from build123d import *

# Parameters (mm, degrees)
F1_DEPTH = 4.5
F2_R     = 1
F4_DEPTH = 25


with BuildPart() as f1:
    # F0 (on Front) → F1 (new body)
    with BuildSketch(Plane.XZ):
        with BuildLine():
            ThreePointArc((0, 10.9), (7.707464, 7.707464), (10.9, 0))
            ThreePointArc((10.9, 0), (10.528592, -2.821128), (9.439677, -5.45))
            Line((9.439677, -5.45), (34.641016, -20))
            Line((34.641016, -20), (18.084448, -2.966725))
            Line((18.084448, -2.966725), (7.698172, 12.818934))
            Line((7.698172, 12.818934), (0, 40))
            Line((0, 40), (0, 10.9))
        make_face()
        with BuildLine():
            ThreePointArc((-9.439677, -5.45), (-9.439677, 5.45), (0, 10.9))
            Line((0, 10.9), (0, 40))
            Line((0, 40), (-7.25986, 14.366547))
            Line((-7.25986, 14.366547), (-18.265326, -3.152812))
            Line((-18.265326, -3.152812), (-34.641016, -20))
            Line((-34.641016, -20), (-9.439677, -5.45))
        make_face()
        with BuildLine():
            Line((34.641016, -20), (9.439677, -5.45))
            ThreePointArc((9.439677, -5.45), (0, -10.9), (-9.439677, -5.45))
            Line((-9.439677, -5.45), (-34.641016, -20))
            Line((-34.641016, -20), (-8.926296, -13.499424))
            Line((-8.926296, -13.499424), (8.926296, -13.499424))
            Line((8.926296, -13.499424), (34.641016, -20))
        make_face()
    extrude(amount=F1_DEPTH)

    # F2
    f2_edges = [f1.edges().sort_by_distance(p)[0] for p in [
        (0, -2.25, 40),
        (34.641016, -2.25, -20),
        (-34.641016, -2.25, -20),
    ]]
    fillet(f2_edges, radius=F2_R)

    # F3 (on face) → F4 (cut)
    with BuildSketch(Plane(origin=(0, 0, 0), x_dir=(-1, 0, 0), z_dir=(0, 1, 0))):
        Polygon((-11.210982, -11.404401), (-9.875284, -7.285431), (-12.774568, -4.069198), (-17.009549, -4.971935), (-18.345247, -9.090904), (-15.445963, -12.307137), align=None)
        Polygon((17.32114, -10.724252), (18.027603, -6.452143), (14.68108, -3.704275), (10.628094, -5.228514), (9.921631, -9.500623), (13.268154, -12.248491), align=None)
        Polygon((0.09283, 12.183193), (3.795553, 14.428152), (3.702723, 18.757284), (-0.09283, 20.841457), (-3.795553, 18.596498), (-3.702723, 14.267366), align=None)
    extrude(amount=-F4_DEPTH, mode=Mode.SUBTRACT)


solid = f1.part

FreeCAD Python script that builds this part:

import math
import FreeCAD as App
import Part
import Sketcher
from FreeCAD import Vector


def edges_at(feature, points):
    """Names of the edges that pass closest to the given points."""
    edges = feature.Shape.Edges
    near = lambda p: min(range(len(edges)), key=lambda i: edges[i].distToShape(Part.Vertex(*p))[0])
    return sorted({f"Edge{near(p) + 1}" for p in points})


def add_polygon(sketch, points):
    """Adds a closed chain of lines whose ends are joined by coincident constraints."""
    first, n = sketch.GeometryCount, len(points)
    for a, b in zip(points, points[1:] + points[:1]):
        sketch.addGeometry(Part.LineSegment(App.Vector(*a, 0), App.Vector(*b, 0)), False)
    for i in range(n):
        sketch.addConstraint(Sketcher.Constraint("Coincident", first + i, 2, first + (i + 1) % n, 1))

doc = App.newDocument("Part")
body = doc.addObject("PartDesign::Body", "Body")

sketch1 = body.newObject("Sketcher::SketchObject", "Sketch")
sketch1.AttachmentSupport = (doc.getObject("XZ_Plane"), [""])
sketch1.MapMode = "FlatFace"
add_polygon(sketch1, [(35, -20), (18, -3), (8, 13), (0, 40), (-7, 14), (-18, -3), (-35, -20), (-9, -13), (9, -13)])
sketch1.addGeometry(Part.ArcOfCircle(Part.Circle(Vector(0, 0, 0), Vector(0, 0, 1), 11), math.radians(0), math.radians(90)), False)
sketch1.addGeometry(Part.ArcOfCircle(Part.Circle(Vector(0, 0, 0), Vector(0, 0, 1), 11), math.radians(-30), math.radians(0)), False)
sketch1.addGeometry(Part.ArcOfCircle(Part.Circle(Vector(0, 0, 0), Vector(0, 0, 1), 11), math.radians(-150), math.radians(-30)), False)
sketch1.addGeometry(Part.ArcOfCircle(Part.Circle(Vector(0, 0, 0), Vector(0, 0, 1), 11), math.radians(90), math.radians(210)), False)
sketch1.addConstraint([
    Sketcher.Constraint("Tangent", 9, 1, 10, 2),
    Sketcher.Constraint("Tangent", 10, 1, 11, 2),
    Sketcher.Constraint("Tangent", 11, 1, 12, 2),
    Sketcher.Constraint("Tangent", 12, 1, 9, 2),
    Sketcher.Constraint("Horizontal", 7),
    Sketcher.Constraint("Coincident", 9, 3, -1, 1),
    Sketcher.Constraint("Equal", 9, 11),
    Sketcher.Constraint("Symmetric", 5, 2, 8, 2, -2),
    Sketcher.Constraint("PointOnObject", 2, 2, -2),
    Sketcher.Constraint("PointOnObject", 9, 1, -1),
    Sketcher.Constraint("PointOnObject", 12, 1, -2),
    Sketcher.Constraint("Horizontal", 10, 1, 11, 1),
    Sketcher.Constraint("Equal", 6, 8),
    Sketcher.Constraint("Radius", 9, 10.9),
    Sketcher.Constraint("DistanceY", -1, 1, 2, 2, 40.0),
    Sketcher.Constraint("DistanceY", 5, 2, -1, 1, 20.0),
    Sketcher.Constraint("DistanceY", 10, 1, -1, 1, 5.45),
    Sketcher.Constraint("DistanceX", 10, 3, 8, 2, 34.641001),
    Sketcher.Constraint("DistanceY", 7, 2, 0, 2, 10.532699),
    Sketcher.Constraint("Distance", 2, 28.250172),
    Sketcher.Constraint("Distance", 5, 23.494488),
    Sketcher.Constraint("DistanceX", 7, 1, 7, 2, 17.852592),
    Sketcher.Constraint("DistanceX", -1, 1, 1, 2, 7.698172),
    Sketcher.Constraint("DistanceX", 3, 2, -1, 1, 7.25986),
    Sketcher.Constraint("DistanceY", 4, 2, -1, 1, 3.152812),
    Sketcher.Constraint("DistanceY", 0, 2, 10, 3, 2.966721),
    Sketcher.Constraint("DistanceX", 12, 3, 0, 2, 18.084448),
    Sketcher.Constraint("DistanceY", 10, 3, 3, 2, 14.366551),
])
pad1 = body.newObject("PartDesign::Pad", "Pad")
pad1.Profile = sketch1
pad1.Length = 4.5
doc.recompute()

fillet = body.newObject("PartDesign::Fillet", "Fillet")
fillet.Base = (pad1, edges_at(pad1, [(0, -2.25, 40), (34.641, -2.25, -20), (-34.641, -2.25, -20)]))
fillet.Radius = 1

sketch2 = body.newObject("Sketcher::SketchObject", "Sketch001")
sketch2.AttachmentSupport = (doc.getObject("XZ_Plane"), [""])
sketch2.MapMode = "FlatFace"
add_polygon(sketch2, [(11.2, -11.4), (9.9, -7.3), (12.8, -4.1), (17, -5), (18.3, -9.1), (15.4, -12.3)])
add_polygon(sketch2, [(-17.3, -10.7), (-18, -6.5), (-14.7, -3.7), (-10.6, -5.2), (-9.9, -9.5), (-13.3, -12.2)])
add_polygon(sketch2, [(-0.1, 12.2), (-3.8, 14.4), (-3.7, 18.8), (0.1, 20.8), (3.8, 18.6), (3.7, 14.3)])
sketch2.addConstraint([
    Sketcher.Constraint("Parallel", 0, 3),
    Sketcher.Constraint("Parallel", 1, 4),
    Sketcher.Constraint("Parallel", 2, 5),
    Sketcher.Constraint("Parallel", 6, 9),
    Sketcher.Constraint("Parallel", 7, 10),
    Sketcher.Constraint("Parallel", 8, 11),
    Sketcher.Constraint("Parallel", 12, 15),
    Sketcher.Constraint("Parallel", 13, 16),
    Sketcher.Constraint("Parallel", 14, 17),
    Sketcher.Constraint("Equal", 0, 1),
    Sketcher.Constraint("Equal", 1, 2),
    Sketcher.Constraint("Equal", 2, 3),
    Sketcher.Constraint("Equal", 5, 6),
    Sketcher.Constraint("Equal", 6, 7),
    Sketcher.Constraint("Equal", 7, 8),
    Sketcher.Constraint("Equal", 8, 9),
    Sketcher.Constraint("Equal", 11, 12),
    Sketcher.Constraint("Equal", 12, 13),
    Sketcher.Constraint("Equal", 13, 14),
    Sketcher.Constraint("Equal", 14, 15),
    Sketcher.Constraint("DistanceY", 5, 2, -1, 1, 11.404401),
    Sketcher.Constraint("DistanceY", -1, 1, 15, 2, 18.596498),
    Sketcher.Constraint("DistanceX", 2, 2, 3, 2, 1.335698),
    Sketcher.Constraint("DistanceY", 0, 2, -1, 1, 7.285431),
    Sketcher.Constraint("DistanceX", -1, 1, 2, 2, 17.009549),
    Sketcher.Constraint("DistanceX", 7, 2, -1, 1, 14.68108),
    Sketcher.Constraint("DistanceX", 9, 2, -1, 1, 9.921631),
    Sketcher.Constraint("DistanceY", 10, 2, -1, 1, 12.248491),
    Sketcher.Constraint("DistanceX", 11, 2, -1, 1, 17.32114),
    Sketcher.Constraint("DistanceX", -1, 1, 14, 2, 0.09283),
    Sketcher.Constraint("DistanceX", 17, 2, -1, 1, 0.09283),
    Sketcher.Constraint("DistanceX", 1, 2, 2, 2, 4.234981),
    Sketcher.Constraint("DistanceY", 4, 2, 1, 2, 8.237939),
    Sketcher.Constraint("DistanceX", 6, 2, 1, 2, 30.802171),
    Sketcher.Constraint("DistanceX", 8, 2, 12, 2, 6.832541),
    Sketcher.Constraint("DistanceY", 1, 2, 12, 2, 18.49735),
])
pocket1 = body.newObject("PartDesign::Pocket", "Pocket")
pocket1.Profile = sketch2
pocket1.Length = 25
pocket1.Reversed = True

doc.recompute()
